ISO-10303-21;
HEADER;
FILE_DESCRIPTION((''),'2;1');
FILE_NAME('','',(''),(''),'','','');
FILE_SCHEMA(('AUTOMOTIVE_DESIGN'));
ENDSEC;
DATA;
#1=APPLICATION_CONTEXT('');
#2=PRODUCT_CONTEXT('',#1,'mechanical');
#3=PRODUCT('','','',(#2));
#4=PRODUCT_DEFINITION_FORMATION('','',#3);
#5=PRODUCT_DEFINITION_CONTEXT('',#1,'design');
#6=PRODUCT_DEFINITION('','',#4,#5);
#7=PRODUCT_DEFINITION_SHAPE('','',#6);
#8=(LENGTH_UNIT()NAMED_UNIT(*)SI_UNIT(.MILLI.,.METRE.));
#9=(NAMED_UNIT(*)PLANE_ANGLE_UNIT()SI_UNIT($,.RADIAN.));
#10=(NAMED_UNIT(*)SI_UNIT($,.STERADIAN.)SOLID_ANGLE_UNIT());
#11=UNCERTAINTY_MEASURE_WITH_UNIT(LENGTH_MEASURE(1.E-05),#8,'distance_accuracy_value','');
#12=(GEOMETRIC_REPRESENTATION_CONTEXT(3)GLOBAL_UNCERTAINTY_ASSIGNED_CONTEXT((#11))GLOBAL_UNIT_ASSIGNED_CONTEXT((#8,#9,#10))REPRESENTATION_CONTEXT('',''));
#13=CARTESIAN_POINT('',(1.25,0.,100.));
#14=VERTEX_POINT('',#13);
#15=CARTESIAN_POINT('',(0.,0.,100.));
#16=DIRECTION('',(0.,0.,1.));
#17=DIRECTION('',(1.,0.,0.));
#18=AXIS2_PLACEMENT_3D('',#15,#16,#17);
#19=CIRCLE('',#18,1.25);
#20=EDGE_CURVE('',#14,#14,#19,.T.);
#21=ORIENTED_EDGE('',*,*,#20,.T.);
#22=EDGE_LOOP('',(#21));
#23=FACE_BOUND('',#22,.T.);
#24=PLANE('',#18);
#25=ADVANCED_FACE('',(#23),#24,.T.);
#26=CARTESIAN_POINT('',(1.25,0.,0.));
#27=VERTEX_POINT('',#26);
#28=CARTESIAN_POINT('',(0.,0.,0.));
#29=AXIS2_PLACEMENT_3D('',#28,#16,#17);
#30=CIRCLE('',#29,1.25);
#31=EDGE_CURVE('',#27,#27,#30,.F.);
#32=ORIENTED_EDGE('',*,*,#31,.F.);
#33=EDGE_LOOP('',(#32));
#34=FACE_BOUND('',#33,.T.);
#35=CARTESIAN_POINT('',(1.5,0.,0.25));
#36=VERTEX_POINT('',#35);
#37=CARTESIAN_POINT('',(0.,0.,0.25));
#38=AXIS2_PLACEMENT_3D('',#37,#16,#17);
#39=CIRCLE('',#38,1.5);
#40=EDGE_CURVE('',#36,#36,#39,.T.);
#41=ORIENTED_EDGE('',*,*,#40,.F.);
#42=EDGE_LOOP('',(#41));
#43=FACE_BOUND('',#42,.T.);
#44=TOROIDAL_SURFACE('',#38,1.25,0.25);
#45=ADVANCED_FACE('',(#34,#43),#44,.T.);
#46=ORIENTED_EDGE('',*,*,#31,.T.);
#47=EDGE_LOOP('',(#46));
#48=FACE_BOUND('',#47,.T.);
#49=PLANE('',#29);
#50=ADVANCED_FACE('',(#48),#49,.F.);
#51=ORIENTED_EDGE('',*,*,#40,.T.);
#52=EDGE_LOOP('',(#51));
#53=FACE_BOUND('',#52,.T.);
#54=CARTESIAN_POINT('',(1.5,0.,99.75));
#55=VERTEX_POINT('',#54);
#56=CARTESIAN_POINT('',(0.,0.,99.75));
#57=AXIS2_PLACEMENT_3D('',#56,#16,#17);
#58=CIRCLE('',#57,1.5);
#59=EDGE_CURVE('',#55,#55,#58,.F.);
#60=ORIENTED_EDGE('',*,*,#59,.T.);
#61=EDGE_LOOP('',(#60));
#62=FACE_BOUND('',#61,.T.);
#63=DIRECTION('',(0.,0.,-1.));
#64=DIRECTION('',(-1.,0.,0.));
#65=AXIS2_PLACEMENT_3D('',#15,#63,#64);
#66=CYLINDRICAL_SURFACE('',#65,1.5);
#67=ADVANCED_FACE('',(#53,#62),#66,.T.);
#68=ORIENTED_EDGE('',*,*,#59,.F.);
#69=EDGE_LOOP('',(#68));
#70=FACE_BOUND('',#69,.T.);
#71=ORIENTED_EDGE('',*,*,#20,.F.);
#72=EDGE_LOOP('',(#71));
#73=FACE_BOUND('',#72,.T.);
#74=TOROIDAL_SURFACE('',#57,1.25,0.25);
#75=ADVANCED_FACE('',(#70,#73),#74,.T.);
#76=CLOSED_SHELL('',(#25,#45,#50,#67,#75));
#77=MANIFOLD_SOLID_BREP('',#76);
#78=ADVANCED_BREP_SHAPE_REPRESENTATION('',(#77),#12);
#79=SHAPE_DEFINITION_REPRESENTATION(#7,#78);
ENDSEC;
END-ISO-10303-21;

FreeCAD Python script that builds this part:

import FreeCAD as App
import Part
import Sketcher

V = App.Vector


def edges_at(feature, points):
    """Names of the edges that pass closest to the given points."""
    edges = feature.Shape.Edges
    near = lambda p: min(range(len(edges)), key=lambda i: edges[i].distToShape(Part.Vertex(*p))[0])
    return sorted({f"Edge{near(p) + 1}" for p in points})

doc = App.newDocument("Part")
params = doc.addObject("Spreadsheet::Sheet", "Params")
for row, (alias, value) in enumerate([
    ("sketch1_diameter", "3 mm"),
    ("pad1_length", "100 mm"),
    ("fillet_radius", "0.25 mm"),
], start=1):
    params.set(f"A{row}", alias)
    params.set(f"B{row}", "=" + value)
    params.setAlias(f"B{row}", alias)

body = doc.addObject("PartDesign::Body", "Body")

# Sketch on XY plane
sketch1 = body.newObject("Sketcher::SketchObject", "Sketch")
sketch1.AttachmentSupport = (doc.getObject("XY_Plane"), [""])
sketch1.MapMode = "FlatFace"
sketch1.addGeometry(Part.Circle(V(0, 0, 0), V(0, 0, 1), 1.5), False)
sketch1.addConstraint([
    Sketcher.Constraint("Coincident", 0, 3, -1, 1),
    Sketcher.Constraint("Diameter", 0, 3.0),
])
sketch1.setExpression("Constraints[1]", "Params.sketch1_diameter")
pad1 = body.newObject("PartDesign::Pad", "Pad")
pad1.Profile = sketch1
pad1.setExpression("Length", "Params.pad1_length")
doc.recompute()

fillet = body.newObject("PartDesign::Fillet", "Fillet")
fillet.Base = (pad1, edges_at(pad1, [(-1.5, 0, 0), (-1.5, 0, 100)]))
fillet.setExpression("Radius", "Params.fillet_radius")

doc.recompute()
